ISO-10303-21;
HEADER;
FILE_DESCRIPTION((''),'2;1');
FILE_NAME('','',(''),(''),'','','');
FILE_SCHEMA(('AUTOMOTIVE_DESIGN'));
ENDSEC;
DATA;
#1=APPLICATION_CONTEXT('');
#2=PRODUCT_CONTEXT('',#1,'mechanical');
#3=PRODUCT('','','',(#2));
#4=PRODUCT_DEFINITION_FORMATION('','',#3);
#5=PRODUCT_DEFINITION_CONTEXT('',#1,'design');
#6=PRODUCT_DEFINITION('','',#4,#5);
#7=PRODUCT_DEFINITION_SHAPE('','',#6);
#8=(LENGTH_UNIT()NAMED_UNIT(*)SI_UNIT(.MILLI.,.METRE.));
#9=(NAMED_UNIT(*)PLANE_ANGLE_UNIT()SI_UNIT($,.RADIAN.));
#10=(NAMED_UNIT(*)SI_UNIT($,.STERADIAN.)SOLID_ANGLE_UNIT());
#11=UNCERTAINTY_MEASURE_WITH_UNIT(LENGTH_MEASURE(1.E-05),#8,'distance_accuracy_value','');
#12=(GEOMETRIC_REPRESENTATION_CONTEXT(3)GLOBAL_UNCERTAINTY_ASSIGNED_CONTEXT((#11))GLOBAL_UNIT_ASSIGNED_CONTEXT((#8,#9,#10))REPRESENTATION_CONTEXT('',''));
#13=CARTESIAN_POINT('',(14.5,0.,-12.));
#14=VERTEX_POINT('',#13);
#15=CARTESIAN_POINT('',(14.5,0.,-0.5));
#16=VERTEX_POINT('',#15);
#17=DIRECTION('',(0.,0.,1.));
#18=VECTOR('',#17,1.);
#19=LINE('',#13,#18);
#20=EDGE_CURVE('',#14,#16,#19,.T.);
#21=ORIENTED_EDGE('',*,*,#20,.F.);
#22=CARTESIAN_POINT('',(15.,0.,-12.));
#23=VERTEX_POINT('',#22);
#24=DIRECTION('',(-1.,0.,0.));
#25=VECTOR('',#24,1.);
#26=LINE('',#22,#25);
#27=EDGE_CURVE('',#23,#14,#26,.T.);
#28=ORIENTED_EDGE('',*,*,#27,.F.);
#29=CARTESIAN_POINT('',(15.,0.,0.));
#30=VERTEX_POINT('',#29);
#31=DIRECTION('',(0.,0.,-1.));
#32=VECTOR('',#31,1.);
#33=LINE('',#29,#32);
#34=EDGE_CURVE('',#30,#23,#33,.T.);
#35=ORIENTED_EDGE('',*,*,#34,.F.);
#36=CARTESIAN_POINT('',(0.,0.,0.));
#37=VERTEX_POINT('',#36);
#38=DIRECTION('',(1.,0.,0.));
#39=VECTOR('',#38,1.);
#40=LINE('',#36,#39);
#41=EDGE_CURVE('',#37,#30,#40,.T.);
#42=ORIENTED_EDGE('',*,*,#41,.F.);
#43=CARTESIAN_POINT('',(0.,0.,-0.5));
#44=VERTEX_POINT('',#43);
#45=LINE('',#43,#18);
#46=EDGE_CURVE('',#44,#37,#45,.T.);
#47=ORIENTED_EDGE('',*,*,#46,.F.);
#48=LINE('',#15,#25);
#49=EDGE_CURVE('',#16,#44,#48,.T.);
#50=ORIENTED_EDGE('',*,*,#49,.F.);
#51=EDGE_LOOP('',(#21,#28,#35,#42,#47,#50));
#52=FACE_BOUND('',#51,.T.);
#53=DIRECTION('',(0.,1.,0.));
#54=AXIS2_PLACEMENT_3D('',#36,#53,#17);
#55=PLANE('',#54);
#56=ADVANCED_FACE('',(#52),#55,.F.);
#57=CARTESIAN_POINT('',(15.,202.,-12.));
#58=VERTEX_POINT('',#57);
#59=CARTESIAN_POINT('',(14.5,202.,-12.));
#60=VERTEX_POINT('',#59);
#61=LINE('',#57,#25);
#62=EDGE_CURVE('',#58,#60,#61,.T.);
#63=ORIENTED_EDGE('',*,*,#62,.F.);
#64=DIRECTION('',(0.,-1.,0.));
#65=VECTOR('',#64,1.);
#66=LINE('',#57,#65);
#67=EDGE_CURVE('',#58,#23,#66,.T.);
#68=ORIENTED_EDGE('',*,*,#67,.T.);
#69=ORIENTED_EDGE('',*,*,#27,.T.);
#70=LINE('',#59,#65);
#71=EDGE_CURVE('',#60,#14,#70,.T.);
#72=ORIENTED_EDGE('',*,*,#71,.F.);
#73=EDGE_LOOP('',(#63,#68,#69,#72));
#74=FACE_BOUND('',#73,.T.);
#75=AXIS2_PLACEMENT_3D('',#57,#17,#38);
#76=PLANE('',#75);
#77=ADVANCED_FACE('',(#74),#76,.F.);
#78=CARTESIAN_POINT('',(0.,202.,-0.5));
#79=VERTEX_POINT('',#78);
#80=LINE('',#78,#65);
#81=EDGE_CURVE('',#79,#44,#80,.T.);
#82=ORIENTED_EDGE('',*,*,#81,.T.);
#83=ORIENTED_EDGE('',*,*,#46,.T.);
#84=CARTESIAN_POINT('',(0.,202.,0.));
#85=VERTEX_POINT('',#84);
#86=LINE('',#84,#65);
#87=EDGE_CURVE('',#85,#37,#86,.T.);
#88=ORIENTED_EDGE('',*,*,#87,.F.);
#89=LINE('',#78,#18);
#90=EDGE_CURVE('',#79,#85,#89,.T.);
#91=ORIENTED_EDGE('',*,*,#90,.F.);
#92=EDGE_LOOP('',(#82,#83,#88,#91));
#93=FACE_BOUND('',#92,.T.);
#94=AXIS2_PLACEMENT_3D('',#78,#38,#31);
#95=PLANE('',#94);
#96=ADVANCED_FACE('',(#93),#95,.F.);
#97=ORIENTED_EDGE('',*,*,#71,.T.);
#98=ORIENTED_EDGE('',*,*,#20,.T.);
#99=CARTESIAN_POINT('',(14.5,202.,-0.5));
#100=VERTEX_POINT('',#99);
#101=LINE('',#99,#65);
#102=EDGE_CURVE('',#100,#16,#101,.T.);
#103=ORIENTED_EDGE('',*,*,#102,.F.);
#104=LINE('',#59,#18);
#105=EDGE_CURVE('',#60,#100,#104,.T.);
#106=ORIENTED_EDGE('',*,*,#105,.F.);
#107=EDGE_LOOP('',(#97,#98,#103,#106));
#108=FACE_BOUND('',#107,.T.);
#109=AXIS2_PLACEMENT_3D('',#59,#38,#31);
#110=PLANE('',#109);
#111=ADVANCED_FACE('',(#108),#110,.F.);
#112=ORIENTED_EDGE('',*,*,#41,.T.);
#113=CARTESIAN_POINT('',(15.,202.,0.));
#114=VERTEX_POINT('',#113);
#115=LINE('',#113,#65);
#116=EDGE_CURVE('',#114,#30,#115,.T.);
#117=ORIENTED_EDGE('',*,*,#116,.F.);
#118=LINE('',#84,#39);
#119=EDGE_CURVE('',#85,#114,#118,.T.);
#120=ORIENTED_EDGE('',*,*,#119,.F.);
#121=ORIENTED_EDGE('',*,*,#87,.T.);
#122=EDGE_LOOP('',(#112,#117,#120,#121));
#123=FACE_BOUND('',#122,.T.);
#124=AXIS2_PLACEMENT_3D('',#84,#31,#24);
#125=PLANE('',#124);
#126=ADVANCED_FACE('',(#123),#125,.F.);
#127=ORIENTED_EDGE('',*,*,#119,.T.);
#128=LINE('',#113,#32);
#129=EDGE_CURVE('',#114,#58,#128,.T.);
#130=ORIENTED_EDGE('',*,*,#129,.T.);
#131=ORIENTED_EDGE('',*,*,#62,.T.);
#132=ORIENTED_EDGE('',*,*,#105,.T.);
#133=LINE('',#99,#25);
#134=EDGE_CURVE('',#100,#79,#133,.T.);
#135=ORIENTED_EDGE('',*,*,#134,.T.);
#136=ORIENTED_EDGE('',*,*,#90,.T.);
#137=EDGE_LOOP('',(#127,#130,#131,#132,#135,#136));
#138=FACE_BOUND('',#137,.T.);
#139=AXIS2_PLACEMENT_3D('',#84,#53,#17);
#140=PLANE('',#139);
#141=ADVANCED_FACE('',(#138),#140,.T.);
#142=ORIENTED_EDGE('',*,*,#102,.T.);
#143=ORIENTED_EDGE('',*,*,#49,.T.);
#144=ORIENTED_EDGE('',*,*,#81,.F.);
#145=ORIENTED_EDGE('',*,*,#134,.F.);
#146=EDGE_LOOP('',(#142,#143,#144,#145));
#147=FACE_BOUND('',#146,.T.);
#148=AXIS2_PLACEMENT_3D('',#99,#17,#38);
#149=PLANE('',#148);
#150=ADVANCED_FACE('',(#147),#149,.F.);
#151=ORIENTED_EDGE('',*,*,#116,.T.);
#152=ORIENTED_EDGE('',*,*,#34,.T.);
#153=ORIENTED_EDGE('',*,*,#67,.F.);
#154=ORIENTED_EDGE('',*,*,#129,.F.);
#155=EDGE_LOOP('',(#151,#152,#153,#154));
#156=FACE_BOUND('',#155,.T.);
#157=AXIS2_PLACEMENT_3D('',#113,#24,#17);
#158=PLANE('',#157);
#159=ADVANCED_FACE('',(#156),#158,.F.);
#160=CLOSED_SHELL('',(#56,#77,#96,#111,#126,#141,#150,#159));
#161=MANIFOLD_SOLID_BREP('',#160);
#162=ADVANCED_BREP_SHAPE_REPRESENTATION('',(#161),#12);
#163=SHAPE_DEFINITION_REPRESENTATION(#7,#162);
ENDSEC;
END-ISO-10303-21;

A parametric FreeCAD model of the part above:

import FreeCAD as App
import Part
import Sketcher

V = App.Vector

doc = App.newDocument("Part")
params = doc.addObject("Spreadsheet::Sheet", "Params")
for row, (alias, value) in enumerate([
    ("sketch1_width", "15 mm"),
    ("sketch1_height", "12 mm"),
    ("sketch1_width2", "0.5 mm"),
    ("pad1_length", "202 mm"),
], start=1):
    params.set(f"A{row}", alias)
    params.set(f"B{row}", "=" + value)
    params.setAlias(f"B{row}", alias)

body = doc.addObject("PartDesign::Body", "Body")

# Sketch on XZ plane
sketch1 = doc.addObject("Sketcher::SketchObject", "Sketch")
body.addObject(sketch1)
sketch1.AttachmentSupport = (doc.XZ_Plane, [""])
sketch1.MapMode = "FlatFace"
sketch1.addGeometry([
    Part.LineSegment(V(0, 0, 0), V(15, 0, 0)),  # 0
    Part.LineSegment(V(15, 0, 0), V(15, -12, 0)),  # 1
    Part.LineSegment(V(15, -12, 0), V(14.5, -12, 0)),  # 2
    Part.LineSegment(V(14.5, -12, 0), V(14.5, -0.5, 0)),  # 3
    Part.LineSegment(V(14.5, -0.5, 0), V(0, -0.5, 0)),  # 4
    Part.LineSegment(V(0, -0.5, 0), V(0, 0, 0)),  # 5
], False)
sketch1.addConstraint([
    Sketcher.Constraint("Coincident", 0, 2, 1, 1),
    Sketcher.Constraint("Coincident", 1, 2, 2, 1),
    Sketcher.Constraint("Coincident", 2, 2, 3, 1),
    Sketcher.Constraint("Coincident", 3, 2, 4, 1),
    Sketcher.Constraint("Coincident", 4, 2, 5, 1),
    Sketcher.Constraint("Coincident", 5, 2, 0, 1),
    Sketcher.Constraint("Horizontal", 0),
    Sketcher.Constraint("Vertical", 1),
    Sketcher.Constraint("Horizontal", 2),
    Sketcher.Constraint("Vertical", 3),
    Sketcher.Constraint("Horizontal", 4),
    Sketcher.Constraint("Vertical", 5),
    Sketcher.Constraint("Coincident", 5, 2, -1, 1),
    Sketcher.Constraint("Equal", 2, 5),
    Sketcher.Constraint("DistanceX", 0, 1, 0, 2, 15.0),
    Sketcher.Constraint("DistanceY", 1, 2, 1, 1, 12.0),
    Sketcher.Constraint("DistanceX", 2, 2, 2, 1, 0.5),
])
sketch1.setExpression("Constraints[14]", "Params.sketch1_width")
sketch1.setExpression("Constraints[15]", "Params.sketch1_height")
sketch1.setExpression("Constraints[16]", "Params.sketch1_width2")
pad1 = doc.addObject("PartDesign::Pad", "Pad")
body.addObject(pad1)
pad1.Profile = sketch1
pad1.setExpression("Length", "Params.pad1_length")
pad1.Reversed = True

doc.recompute()
